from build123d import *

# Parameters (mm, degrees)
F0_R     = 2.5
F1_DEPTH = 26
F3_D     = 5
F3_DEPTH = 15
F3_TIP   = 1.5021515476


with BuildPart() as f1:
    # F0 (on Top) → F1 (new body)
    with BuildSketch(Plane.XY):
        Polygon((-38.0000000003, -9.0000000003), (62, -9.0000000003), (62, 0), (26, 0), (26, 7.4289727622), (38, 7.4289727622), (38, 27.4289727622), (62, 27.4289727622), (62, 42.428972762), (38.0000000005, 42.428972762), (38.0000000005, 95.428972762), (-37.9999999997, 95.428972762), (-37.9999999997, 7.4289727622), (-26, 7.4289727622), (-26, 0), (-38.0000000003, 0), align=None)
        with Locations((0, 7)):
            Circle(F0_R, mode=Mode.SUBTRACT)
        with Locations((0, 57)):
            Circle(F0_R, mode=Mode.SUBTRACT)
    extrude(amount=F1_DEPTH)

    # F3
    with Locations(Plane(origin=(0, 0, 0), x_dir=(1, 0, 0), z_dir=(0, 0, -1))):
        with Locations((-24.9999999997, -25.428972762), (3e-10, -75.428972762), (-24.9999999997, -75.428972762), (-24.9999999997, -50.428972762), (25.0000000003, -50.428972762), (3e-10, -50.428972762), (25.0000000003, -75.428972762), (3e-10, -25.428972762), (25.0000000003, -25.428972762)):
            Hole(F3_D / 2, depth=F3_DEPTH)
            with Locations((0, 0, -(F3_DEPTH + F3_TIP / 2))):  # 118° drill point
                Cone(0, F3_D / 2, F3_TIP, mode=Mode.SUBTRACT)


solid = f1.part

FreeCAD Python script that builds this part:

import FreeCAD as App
import Part
import Sketcher
from FreeCAD import Vector
Q = App.Units.Quantity

doc = App.newDocument("Part")
body = doc.addObject("PartDesign::Body", "Body")

# Sketch on XY plane
sketch1 = doc.addObject("Sketcher::SketchObject", "Sketch")
body.addObject(sketch1)
sketch1.AttachmentSupport = (doc.XY_Plane, [""])
sketch1.MapMode = "FlatFace"
sketch1.addGeometry(Part.LineSegment(Vector(-38, -9, 0), Vector(62, -9, 0)), False)
sketch1.addGeometry(Part.LineSegment(Vector(62, -9, 0), Vector(62, 0, 0)), False)
sketch1.addGeometry(Part.LineSegment(Vector(62, 0, 0), Vector(26, 0, 0)), False)
sketch1.addGeometry(Part.LineSegment(Vector(26, 0, 0), Vector(26, 7.4, 0)), False)
sketch1.addGeometry(Part.LineSegment(Vector(26, 7.4, 0), Vector(38, 7.4, 0)), False)
sketch1.addGeometry(Part.LineSegment(Vector(38, 7.4, 0), Vector(38, 27.4, 0)), False)
sketch1.addGeometry(Part.LineSegment(Vector(38, 27.4, 0), Vector(62, 27.4, 0)), False)
sketch1.addGeometry(Part.LineSegment(Vector(62, 27.4, 0), Vector(62, 42.4, 0)), False)
sketch1.addGeometry(Part.LineSegment(Vector(62, 42.4, 0), Vector(38, 42.4, 0)), False)
sketch1.addGeometry(Part.LineSegment(Vector(38, 42.4, 0), Vector(38, 95.4, 0)), False)
sketch1.addGeometry(Part.LineSegment(Vector(38, 95.4, 0), Vector(-38, 95.4, 0)), False)
sketch1.addGeometry(Part.LineSegment(Vector(-38, 95.4, 0), Vector(-38, 7.4, 0)), False)
sketch1.addGeometry(Part.LineSegment(Vector(-38, 7.4, 0), Vector(-26, 7.4, 0)), False)
sketch1.addGeometry(Part.LineSegment(Vector(-26, 7.4, 0), Vector(-26, 0, 0)), False)
sketch1.addGeometry(Part.LineSegment(Vector(-26, 0, 0), Vector(-38, 0, 0)), False)
sketch1.addGeometry(Part.LineSegment(Vector(-38, 0, 0), Vector(-38, -9, 0)), False)
sketch1.addGeometry(Part.Circle(Vector(0, 7, 0), Vector(0, 0, 1), 2.5), False)
sketch1.addGeometry(Part.Circle(Vector(0, 57, 0), Vector(0, 0, 1), 2.5), False)
sketch1.addConstraint(Sketcher.Constraint("Coincident", 0, 2, 1, 1))
sketch1.addConstraint(Sketcher.Constraint("Coincident", 1, 2, 2, 1))
sketch1.addConstraint(Sketcher.Constraint("Coincident", 2, 2, 3, 1))
sketch1.addConstraint(Sketcher.Constraint("Coincident", 3, 2, 4, 1))
sketch1.addConstraint(Sketcher.Constraint("Coincident", 4, 2, 5, 1))
sketch1.addConstraint(Sketcher.Constraint("Coincident", 5, 2, 6, 1))
sketch1.addConstraint(Sketcher.Constraint("Coincident", 6, 2, 7, 1))
sketch1.addConstraint(Sketcher.Constraint("Coincident", 7, 2, 8, 1))
sketch1.addConstraint(Sketcher.Constraint("Coincident", 8, 2, 9, 1))
sketch1.addConstraint(Sketcher.Constraint("Coincident", 9, 2, 10, 1))
sketch1.addConstraint(Sketcher.Constraint("Coincident", 10, 2, 11, 1))
sketch1.addConstraint(Sketcher.Constraint("Coincident", 11, 2, 12, 1))
sketch1.addConstraint(Sketcher.Constraint("Coincident", 12, 2, 13, 1))
sketch1.addConstraint(Sketcher.Constraint("Coincident", 13, 2, 14, 1))
sketch1.addConstraint(Sketcher.Constraint("Coincident", 14, 2, 15, 1))
sketch1.addConstraint(Sketcher.Constraint("Coincident", 15, 2, 0, 1))
sketch1.addConstraint(Sketcher.Constraint("Horizontal", 0))
sketch1.addConstraint(Sketcher.Constraint("Vertical", 1))
sketch1.addConstraint(Sketcher.Constraint("Horizontal", 2))
sketch1.addConstraint(Sketcher.Constraint("Vertical", 3))
sketch1.addConstraint(Sketcher.Constraint("Horizontal", 4))
sketch1.addConstraint(Sketcher.Constraint("Vertical", 5))
sketch1.addConstraint(Sketcher.Constraint("Horizontal", 6))
sketch1.addConstraint(Sketcher.Constraint("Vertical", 7))
sketch1.addConstraint(Sketcher.Constraint("Horizontal", 8))
sketch1.addConstraint(Sketcher.Constraint("Vertical", 9))
sketch1.addConstraint(Sketcher.Constraint("Horizontal", 10))
sketch1.addConstraint(Sketcher.Constraint("Vertical", 11))
sketch1.addConstraint(Sketcher.Constraint("Horizontal", 12))
sketch1.addConstraint(Sketcher.Constraint("Vertical", 13))
sketch1.addConstraint(Sketcher.Constraint("Horizontal", 14))
sketch1.addConstraint(Sketcher.Constraint("Vertical", 15))
sketch1.addConstraint(Sketcher.Constraint("Equal", 16, 17))
sketch1.addConstraint(Sketcher.Constraint("Symmetric", 2, 2, 13, 2, -1, 1))
sketch1.addConstraint(Sketcher.Constraint("Symmetric", 4, 2, 11, 2, -2))
sketch1.addConstraint(Sketcher.Constraint("PointOnObject", 16, 3, -2))
sketch1.addConstraint(Sketcher.Constraint("PointOnObject", 17, 3, -2))
sketch1.addConstraint(Sketcher.Constraint("PointOnObject", 1, 2, -1))
sketch1.addConstraint(Sketcher.Constraint("Vertical", 1, 2, 6, 2))
sketch1.addConstraint(Sketcher.Constraint("Vertical", 5, 2, 8, 2))
sketch1.addConstraint(Sketcher.Constraint("Vertical", 11, 2, 14, 2))
sketch1.addConstraint(Sketcher.Constraint("Diameter", 16, Q("5 mm")))
sketch1.addConstraint(Sketcher.Constraint("DistanceX", 0, 1, 0, 2, Q("100 mm")))
sketch1.addConstraint(Sketcher.Constraint("DistanceX", 2, 2, 2, 1, Q("36 mm")))
sketch1.addConstraint(Sketcher.Constraint("DistanceX", 4, 1, 4, 2, Q("12 mm")))
sketch1.addConstraint(Sketcher.Constraint("DistanceY", 1, 1, 1, 2, Q("9 mm")))
sketch1.addConstraint(Sketcher.Constraint("DistanceY", 5, 1, 5, 2, Q("20 mm")))
sketch1.addConstraint(Sketcher.Constraint("DistanceY", 7, 1, 7, 2, Q("15 mm")))
sketch1.addConstraint(Sketcher.Constraint("DistanceY", 9, 1, 9, 2, Q("53 mm")))
sketch1.addConstraint(Sketcher.Constraint("DistanceY", -1, 1, 16, 3, Q("7 mm")))
sketch1.addConstraint(Sketcher.Constraint("DistanceY", -1, 1, 17, 3, Q("57 mm")))
sketch1.addConstraint(Sketcher.Constraint("DistanceY", 3, 1, 3, 2, Q("7.428973 mm")))
pad1 = doc.addObject("PartDesign::Pad", "Pad")
body.addObject(pad1)
pad1.Profile = sketch1
pad1.Length = 26

# Sketch on XY plane
sketch2 = doc.addObject("Sketcher::SketchObject", "Sketch001")
body.addObject(sketch2)
sketch2.AttachmentSupport = (doc.XY_Plane, [""])
sketch2.MapMode = "FlatFace"
sketch2.addGeometry(Part.Circle(Vector(-25, 25.4, 0), Vector(0, 0, 1), 2.5), False)
sketch2.addGeometry(Part.Circle(Vector(0, 75.4, 0), Vector(0, 0, 1), 2.5), False)
sketch2.addGeometry(Part.Circle(Vector(-25, 75.4, 0), Vector(0, 0, 1), 2.5), False)
sketch2.addGeometry(Part.Circle(Vector(-25, 50.4, 0), Vector(0, 0, 1), 2.5), False)
sketch2.addGeometry(Part.Circle(Vector(25, 50.4, 0), Vector(0, 0, 1), 2.5), False)
sketch2.addGeometry(Part.Circle(Vector(0, 50.4, 0), Vector(0, 0, 1), 2.5), False)
sketch2.addGeometry(Part.Circle(Vector(25, 75.4, 0), Vector(0, 0, 1), 2.5), False)
sketch2.addGeometry(Part.Circle(Vector(0, 25.4, 0), Vector(0, 0, 1), 2.5), False)
sketch2.addGeometry(Part.Circle(Vector(25, 25.4, 0), Vector(0, 0, 1), 2.5), False)
sketch2.addConstraint(Sketcher.Constraint("Equal", 0, 1))
sketch2.addConstraint(Sketcher.Constraint("Equal", 1, 2))
sketch2.addConstraint(Sketcher.Constraint("Equal", 2, 3))
sketch2.addConstraint(Sketcher.Constraint("Equal", 3, 4))
sketch2.addConstraint(Sketcher.Constraint("Equal", 4, 5))
sketch2.addConstraint(Sketcher.Constraint("Equal", 5, 6))
sketch2.addConstraint(Sketcher.Constraint("Equal", 6, 7))
sketch2.addConstraint(Sketcher.Constraint("Equal", 7, 8))
sketch2.addConstraint(Sketcher.Constraint("Symmetric", 3, 3, 4, 3, -2))
sketch2.addConstraint(Sketcher.Constraint("Symmetric", 2, 3, 6, 3, -2))
sketch2.addConstraint(Sketcher.Constraint("Symmetric", 0, 3, 8, 3, -2))
sketch2.addConstraint(Sketcher.Constraint("PointOnObject", 1, 3, -2))
sketch2.addConstraint(Sketcher.Constraint("PointOnObject", 5, 3, -2))
sketch2.addConstraint(Sketcher.Constraint("PointOnObject", 7, 3, -2))
sketch2.addConstraint(Sketcher.Constraint("Horizontal", 1, 3, 2, 3))
sketch2.addConstraint(Sketcher.Constraint("Horizontal", 4, 3, 5, 3))
sketch2.addConstraint(Sketcher.Constraint("Horizontal", 0, 3, 7, 3))
sketch2.addConstraint(Sketcher.Constraint("Vertical", 0, 3, 2, 3))
sketch2.addConstraint(Sketcher.Constraint("Vertical", 2, 3, 3, 3))
sketch2.addConstraint(Sketcher.Constraint("Diameter", 0, Q("5 mm")))
sketch2.addConstraint(Sketcher.Constraint("DistanceX", 0, 3, -1, 1, Q("25 mm")))
sketch2.addConstraint(Sketcher.Constraint("DistanceY", 0, 3, 1, 3, Q("50 mm")))
sketch2.addConstraint(Sketcher.Constraint("DistanceY", 0, 3, 3, 3, Q("25 mm")))
sketch2.addConstraint(Sketcher.Constraint("DistanceY", -1, 1, 0, 3, Q("25.428973 mm")))
doc.recompute()
hole = doc.addObject("PartDesign::Hole", "Hole")
body.addObject(hole)
hole.Profile = sketch2
hole.ThreadType = "None"
hole.Diameter = 5
hole.DepthType = "Dimension"
hole.Depth = 15
hole.DrillPoint = "Angled"
hole.DrillPointAngle = 118
hole.Reversed = True

doc.recompute()
